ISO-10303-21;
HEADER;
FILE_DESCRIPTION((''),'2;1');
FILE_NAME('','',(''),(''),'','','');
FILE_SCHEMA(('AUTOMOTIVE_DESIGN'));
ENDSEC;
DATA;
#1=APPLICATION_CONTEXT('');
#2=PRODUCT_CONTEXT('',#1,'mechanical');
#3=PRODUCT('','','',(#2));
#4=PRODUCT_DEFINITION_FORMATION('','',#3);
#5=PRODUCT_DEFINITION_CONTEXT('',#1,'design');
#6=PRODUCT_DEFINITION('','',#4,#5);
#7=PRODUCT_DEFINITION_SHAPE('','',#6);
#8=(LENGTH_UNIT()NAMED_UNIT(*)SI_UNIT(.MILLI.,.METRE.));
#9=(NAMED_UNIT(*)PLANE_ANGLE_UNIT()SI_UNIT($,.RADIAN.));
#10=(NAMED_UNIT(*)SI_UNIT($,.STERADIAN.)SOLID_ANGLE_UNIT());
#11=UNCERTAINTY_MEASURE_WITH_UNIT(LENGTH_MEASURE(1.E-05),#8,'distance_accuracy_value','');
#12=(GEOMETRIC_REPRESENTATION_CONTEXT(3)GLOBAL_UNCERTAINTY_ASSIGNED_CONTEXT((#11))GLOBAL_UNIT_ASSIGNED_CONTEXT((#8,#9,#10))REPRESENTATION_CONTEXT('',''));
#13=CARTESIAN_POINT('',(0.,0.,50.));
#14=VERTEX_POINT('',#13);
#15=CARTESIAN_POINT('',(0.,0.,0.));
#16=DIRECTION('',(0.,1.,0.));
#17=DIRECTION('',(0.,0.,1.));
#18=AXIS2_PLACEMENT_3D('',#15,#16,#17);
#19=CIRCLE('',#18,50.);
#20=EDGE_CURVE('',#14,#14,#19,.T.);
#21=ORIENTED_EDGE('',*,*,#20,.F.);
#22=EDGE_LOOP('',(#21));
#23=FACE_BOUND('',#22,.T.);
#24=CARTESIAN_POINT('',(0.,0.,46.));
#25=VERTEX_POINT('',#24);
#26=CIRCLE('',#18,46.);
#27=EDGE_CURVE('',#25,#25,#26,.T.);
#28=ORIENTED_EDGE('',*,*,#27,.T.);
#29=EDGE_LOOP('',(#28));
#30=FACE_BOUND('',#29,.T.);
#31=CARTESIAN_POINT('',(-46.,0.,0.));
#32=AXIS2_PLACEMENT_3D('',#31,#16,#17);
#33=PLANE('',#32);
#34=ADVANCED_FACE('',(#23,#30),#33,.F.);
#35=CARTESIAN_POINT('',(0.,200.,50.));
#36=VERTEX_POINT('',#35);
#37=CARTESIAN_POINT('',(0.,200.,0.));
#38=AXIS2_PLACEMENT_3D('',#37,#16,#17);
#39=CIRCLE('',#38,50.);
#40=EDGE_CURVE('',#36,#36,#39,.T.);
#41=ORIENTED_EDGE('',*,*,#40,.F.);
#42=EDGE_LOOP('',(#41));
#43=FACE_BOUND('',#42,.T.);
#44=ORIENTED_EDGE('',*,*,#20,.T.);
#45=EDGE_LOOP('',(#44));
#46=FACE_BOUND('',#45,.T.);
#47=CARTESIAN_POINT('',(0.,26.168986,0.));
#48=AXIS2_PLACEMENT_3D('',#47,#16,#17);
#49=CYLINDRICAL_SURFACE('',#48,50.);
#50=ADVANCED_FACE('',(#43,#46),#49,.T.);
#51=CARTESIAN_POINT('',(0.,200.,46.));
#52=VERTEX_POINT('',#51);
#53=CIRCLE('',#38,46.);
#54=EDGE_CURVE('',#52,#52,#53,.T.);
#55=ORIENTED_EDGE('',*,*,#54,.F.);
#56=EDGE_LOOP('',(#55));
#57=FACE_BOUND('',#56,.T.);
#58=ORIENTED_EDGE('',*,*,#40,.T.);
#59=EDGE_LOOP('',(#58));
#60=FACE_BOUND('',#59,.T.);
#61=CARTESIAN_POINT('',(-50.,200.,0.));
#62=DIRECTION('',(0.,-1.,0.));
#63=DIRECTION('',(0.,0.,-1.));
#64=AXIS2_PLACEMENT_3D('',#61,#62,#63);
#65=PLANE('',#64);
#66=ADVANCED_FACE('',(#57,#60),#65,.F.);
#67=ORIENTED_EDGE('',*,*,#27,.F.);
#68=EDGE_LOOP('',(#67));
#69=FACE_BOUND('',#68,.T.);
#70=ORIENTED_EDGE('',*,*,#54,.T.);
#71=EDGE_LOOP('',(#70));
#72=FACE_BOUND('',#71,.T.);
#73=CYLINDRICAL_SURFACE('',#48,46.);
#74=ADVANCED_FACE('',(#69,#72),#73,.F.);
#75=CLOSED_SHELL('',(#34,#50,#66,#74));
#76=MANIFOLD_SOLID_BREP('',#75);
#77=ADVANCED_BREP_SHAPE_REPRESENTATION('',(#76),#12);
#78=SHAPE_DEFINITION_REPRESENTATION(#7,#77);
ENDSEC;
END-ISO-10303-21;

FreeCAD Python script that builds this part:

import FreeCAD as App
import Part
import Sketcher

V = App.Vector

doc = App.newDocument("Part")
body = doc.addObject("PartDesign::Body", "Body")

sketch1 = body.newObject("Sketcher::SketchObject", "Sketch")
sketch1.AttachmentSupport = (doc.getObject("XY_Plane"), [""])
sketch1.MapMode = "FlatFace"
sketch1.addGeometry([
    Part.LineSegment(V(-50, 200, 0), V(-50, 0, 0)),
    Part.LineSegment(V(-50, 0, 0), V(-46, 0, 0)),
    Part.LineSegment(V(-46, 0, 0), V(-46, 200, 0)),
    Part.LineSegment(V(-46, 200, 0), V(-50, 200, 0)),
], False)
sketch1.addConstraint([
    Sketcher.Constraint("Coincident", 0, 2, 1, 1),
    Sketcher.Constraint("Coincident", 1, 2, 2, 1),
    Sketcher.Constraint("Coincident", 2, 2, 3, 1),
    Sketcher.Constraint("Coincident", 3, 2, 0, 1),
    Sketcher.Constraint("Vertical", 0),
    Sketcher.Constraint("Horizontal", 1),
    Sketcher.Constraint("Vertical", 2),
    Sketcher.Constraint("Horizontal", 3),
    Sketcher.Constraint("PointOnObject", 0, 2, -1),
    Sketcher.Constraint("DistanceX", 1, 1, 1, 2, 4.0),
    Sketcher.Constraint("DistanceY", 0, 2, 0, 1, 200.0),
    Sketcher.Constraint("DistanceX", 0, 2, -1, 1, 50.0),
])
revolution = body.newObject("PartDesign::Revolution", "Revolution")
revolution.Profile = sketch1
revolution.ReferenceAxis = (sketch1, ["V_Axis"])
revolution.Angle = 360

doc.recompute()
